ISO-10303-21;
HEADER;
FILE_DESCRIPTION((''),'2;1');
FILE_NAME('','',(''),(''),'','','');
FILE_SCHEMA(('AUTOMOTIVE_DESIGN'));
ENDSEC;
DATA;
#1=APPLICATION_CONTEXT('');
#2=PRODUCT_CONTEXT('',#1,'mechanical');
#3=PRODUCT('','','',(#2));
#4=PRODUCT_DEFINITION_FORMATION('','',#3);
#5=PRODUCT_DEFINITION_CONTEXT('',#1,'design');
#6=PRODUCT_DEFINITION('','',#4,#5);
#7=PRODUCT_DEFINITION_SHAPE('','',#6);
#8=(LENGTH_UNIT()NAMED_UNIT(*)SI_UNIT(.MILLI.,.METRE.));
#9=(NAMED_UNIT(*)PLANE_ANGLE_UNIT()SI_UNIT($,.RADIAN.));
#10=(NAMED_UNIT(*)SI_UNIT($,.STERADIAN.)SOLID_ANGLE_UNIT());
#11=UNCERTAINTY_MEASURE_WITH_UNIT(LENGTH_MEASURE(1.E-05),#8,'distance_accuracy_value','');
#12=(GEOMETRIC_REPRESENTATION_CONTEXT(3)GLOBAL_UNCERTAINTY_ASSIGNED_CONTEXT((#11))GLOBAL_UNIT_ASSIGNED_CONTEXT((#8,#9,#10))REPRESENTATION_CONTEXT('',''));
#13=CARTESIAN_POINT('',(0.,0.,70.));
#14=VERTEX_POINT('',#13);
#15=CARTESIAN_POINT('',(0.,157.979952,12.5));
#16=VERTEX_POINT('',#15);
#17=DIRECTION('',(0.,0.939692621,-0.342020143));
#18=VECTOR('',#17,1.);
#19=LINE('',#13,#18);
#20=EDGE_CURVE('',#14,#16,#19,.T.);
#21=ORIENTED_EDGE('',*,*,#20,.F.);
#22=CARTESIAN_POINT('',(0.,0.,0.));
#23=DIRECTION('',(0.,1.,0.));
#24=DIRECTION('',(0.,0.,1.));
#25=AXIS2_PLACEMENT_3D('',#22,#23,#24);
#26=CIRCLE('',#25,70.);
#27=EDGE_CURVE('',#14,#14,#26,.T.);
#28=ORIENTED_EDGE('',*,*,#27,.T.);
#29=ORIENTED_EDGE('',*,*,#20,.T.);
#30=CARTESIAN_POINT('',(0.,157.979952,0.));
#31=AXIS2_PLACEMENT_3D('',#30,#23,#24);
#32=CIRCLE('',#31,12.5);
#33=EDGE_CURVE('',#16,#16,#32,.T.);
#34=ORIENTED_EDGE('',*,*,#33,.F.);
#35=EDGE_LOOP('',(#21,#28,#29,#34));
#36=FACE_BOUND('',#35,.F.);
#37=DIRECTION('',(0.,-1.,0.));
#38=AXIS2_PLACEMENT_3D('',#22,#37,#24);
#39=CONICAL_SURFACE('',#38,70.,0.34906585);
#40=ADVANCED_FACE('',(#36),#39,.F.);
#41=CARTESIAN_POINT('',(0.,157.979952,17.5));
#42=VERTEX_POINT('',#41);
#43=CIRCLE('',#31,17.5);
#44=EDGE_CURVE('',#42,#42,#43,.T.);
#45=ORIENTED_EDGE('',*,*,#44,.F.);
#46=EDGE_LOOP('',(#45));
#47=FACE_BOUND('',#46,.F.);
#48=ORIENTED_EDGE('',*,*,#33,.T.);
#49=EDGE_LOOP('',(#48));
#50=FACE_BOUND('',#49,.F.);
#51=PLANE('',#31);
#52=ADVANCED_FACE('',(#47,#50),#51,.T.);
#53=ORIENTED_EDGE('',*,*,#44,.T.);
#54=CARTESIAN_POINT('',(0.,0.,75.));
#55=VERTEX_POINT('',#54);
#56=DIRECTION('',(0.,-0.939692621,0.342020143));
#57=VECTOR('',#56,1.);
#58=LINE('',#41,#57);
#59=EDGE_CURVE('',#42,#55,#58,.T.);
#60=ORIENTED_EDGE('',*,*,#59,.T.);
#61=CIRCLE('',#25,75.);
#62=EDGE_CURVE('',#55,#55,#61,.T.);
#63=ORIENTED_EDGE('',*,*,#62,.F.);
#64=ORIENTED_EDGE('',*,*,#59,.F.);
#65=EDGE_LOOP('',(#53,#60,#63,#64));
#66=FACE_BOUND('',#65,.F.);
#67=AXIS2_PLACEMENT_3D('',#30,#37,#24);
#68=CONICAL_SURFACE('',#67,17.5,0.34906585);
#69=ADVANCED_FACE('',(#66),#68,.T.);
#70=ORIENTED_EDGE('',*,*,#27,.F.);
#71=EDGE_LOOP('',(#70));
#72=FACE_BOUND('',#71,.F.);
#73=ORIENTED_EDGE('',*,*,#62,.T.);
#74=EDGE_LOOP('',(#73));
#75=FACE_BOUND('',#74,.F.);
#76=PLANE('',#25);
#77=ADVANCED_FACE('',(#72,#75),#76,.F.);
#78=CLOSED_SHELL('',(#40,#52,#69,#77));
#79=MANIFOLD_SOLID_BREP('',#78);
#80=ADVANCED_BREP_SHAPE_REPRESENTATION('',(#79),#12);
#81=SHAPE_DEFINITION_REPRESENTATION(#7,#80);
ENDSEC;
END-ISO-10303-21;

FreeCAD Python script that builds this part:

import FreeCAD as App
import Part
import Sketcher

V = App.Vector
Q = App.Units.Quantity


def add_polygon(sketch, points):
    """Adds a closed chain of lines whose ends are joined by coincident constraints."""
    first, n = sketch.GeometryCount, len(points)
    for a, b in zip(points, points[1:] + points[:1]):
        sketch.addGeometry(Part.LineSegment(App.Vector(*a, 0), App.Vector(*b, 0)), False)
    for i in range(n):
        sketch.addConstraint(Sketcher.Constraint("Coincident", first + i, 2, first + (i + 1) % n, 1))

doc = App.newDocument("Part")
body = doc.addObject("PartDesign::Body", "Body")

# Sketch on YZ plane
sketch1 = body.newObject("Sketcher::SketchObject", "Sketch")
sketch1.AttachmentSupport = (doc.getObject("YZ_Plane"), [""])
sketch1.MapMode = "FlatFace"
add_polygon(sketch1, [(158, 18), (0, 75), (0, 70), (158, 12)])  # lines 0-3
sketch1.addConstraint([
    Sketcher.Constraint("Vertical", 1),
    Sketcher.Constraint("Vertical", 3),
    Sketcher.Constraint("PointOnObject", 0, 2, -2),
    Sketcher.Constraint("Parallel", 0, 2),
    Sketcher.Constraint("DistanceY", 1, 2, 1, 1, Q("5 mm")),
    Sketcher.Constraint("Angle", 0, Q("160 deg")),
    Sketcher.Constraint("DistanceY", -1, 1, 0, 2, Q("75 mm")),
    Sketcher.Constraint("DistanceY", -1, 1, 2, 2, Q("12.5 mm")),
])
revolution = body.newObject("PartDesign::Revolution", "Revolution")
revolution.Profile = sketch1
revolution.ReferenceAxis = (sketch1, ["H_Axis"])
revolution.Angle = 360

doc.recompute()
